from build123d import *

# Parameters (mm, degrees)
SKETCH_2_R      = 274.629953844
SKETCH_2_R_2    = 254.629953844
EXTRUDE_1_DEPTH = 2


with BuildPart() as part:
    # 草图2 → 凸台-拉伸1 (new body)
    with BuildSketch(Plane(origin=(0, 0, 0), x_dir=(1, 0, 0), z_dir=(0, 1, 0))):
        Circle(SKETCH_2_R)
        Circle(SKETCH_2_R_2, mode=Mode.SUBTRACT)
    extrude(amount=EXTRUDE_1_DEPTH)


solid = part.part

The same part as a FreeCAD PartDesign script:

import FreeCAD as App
import Part
import Sketcher

V = App.Vector

doc = App.newDocument("Part")
body = doc.addObject("PartDesign::Body", "Body")

sketch1 = body.newObject("Sketcher::SketchObject", "Sketch")
sketch1.AttachmentSupport = (doc.getObject("XZ_Plane"), [""])
sketch1.MapMode = "FlatFace"
sketch1.addGeometry(Part.Circle(V(0, 0, 0), V(0, 0, 1), 275), False)
sketch1.addGeometry(Part.Circle(V(0, 0, 0), V(0, 0, 1), 255), False)
sketch1.addConstraint(Sketcher.Constraint("Coincident", 0, 3, -1, 1))
sketch1.addConstraint(Sketcher.Constraint("Coincident", 1, 3, -1, 1))
sketch1.addConstraint(Sketcher.Constraint("Diameter", 0, 549.259908))
sketch1.addConstraint(Sketcher.Constraint("Diameter", 1, 509.259908))
pad1 = body.newObject("PartDesign::Pad", "Pad")
pad1.Profile = sketch1
pad1.Length = 2
pad1.Reversed = True

doc.recompute()
